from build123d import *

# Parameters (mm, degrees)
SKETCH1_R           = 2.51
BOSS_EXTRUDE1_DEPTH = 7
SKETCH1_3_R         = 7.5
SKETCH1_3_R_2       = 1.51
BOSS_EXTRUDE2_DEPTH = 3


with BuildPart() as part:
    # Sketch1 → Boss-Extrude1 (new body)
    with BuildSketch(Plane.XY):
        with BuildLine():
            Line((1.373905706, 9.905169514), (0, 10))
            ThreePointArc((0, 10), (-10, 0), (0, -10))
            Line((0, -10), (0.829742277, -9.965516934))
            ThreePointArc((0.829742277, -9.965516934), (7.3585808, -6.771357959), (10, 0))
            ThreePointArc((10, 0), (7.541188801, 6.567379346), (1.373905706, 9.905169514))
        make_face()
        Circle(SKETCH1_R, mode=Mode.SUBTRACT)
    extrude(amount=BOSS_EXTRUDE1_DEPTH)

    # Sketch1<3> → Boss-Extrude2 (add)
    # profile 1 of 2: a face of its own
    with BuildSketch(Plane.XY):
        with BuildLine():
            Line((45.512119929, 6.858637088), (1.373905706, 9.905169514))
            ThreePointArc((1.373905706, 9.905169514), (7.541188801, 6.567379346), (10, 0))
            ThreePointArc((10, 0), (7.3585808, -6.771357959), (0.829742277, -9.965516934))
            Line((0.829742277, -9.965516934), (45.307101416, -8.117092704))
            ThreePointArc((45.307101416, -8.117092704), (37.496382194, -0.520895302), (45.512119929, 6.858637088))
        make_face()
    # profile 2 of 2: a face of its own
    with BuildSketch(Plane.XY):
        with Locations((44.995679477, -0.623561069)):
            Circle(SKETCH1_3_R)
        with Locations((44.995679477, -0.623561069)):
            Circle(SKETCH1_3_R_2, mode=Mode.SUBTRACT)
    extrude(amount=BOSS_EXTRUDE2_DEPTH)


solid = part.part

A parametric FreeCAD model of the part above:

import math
import FreeCAD as App
import Part
import Sketcher
from FreeCAD import Vector

doc = App.newDocument("Part")
body = doc.addObject("PartDesign::Body", "Body")

sketch1 = doc.addObject("Sketcher::SketchObject", "Sketch")
body.addObject(sketch1)
sketch1.AttachmentSupport = (doc.XY_Plane, [""])
sketch1.MapMode = "FlatFace"
sketch1.addGeometry([
    Part.LineSegment(Vector(1.4, 9.9, 0), Vector(0, 10, 0)),
    Part.ArcOfCircle(Part.Circle(Vector(0, 0, 0), Vector(0, 0, 1), 10), math.radians(90), math.radians(270)),
    Part.LineSegment(Vector(0, -10, 0), Vector(0.8, -10, 0)),
    Part.ArcOfCircle(Part.Circle(Vector(0, 0, 0), Vector(0, 0, 1), 10), math.radians(-85), math.radians(0)),
    Part.ArcOfCircle(Part.Circle(Vector(0, 0, 0), Vector(0, 0, 1), 10), math.radians(0), math.radians(82)),
    Part.Circle(Vector(0, 0, 0), Vector(0, 0, 1), 2.5),
], False)
sketch1.addConstraint([
    Sketcher.Constraint("Coincident", 0, 2, 1, 1),
    Sketcher.Constraint("Coincident", 1, 2, 2, 1),
    Sketcher.Constraint("Coincident", 2, 2, 3, 1),
    Sketcher.Constraint("Tangent", 3, 2, 4, 1),
    Sketcher.Constraint("Coincident", 4, 2, 0, 1),
    Sketcher.Constraint("Coincident", 1, 3, -1, 1),
    Sketcher.Constraint("Coincident", 3, 3, -1, 1),
    Sketcher.Constraint("Coincident", 5, 3, -1, 1),
    Sketcher.Constraint("Equal", 1, 3),
    Sketcher.Constraint("Equal", 3, 4),
    Sketcher.Constraint("PointOnObject", 0, 2, -2),
    Sketcher.Constraint("PointOnObject", 1, 2, -2),
    Sketcher.Constraint("PointOnObject", 3, 2, -1),
    Sketcher.Constraint("Radius", 1, 10.0),
    Sketcher.Constraint("Diameter", 5, 5.02),
    Sketcher.Constraint("Distance", 2, 0.830459),
    Sketcher.Constraint("DistanceY", -1, 1, 4, 2, 9.90517),
])
pad1 = doc.addObject("PartDesign::Pad", "Pad")
body.addObject(pad1)
pad1.Profile = sketch1
pad1.Length = 7

sketch2 = doc.addObject("Sketcher::SketchObject", "Sketch001")
body.addObject(sketch2)
sketch2.AttachmentSupport = (doc.XY_Plane, [""])
sketch2.MapMode = "FlatFace"
sketch2.addGeometry([
    Part.LineSegment(Vector(45.5, 6.9, 0), Vector(1.4, 9.9, 0)),
    Part.ArcOfCircle(Part.Circle(Vector(0, 0, 0), Vector(0, 0, 1), 10), math.radians(0), math.radians(82)),
    Part.ArcOfCircle(Part.Circle(Vector(0, 0, 0), Vector(0, 0, 1), 10), math.radians(-85), math.radians(0)),
    Part.LineSegment(Vector(0.8, -10, 0), Vector(45.3, -8.1, 0)),
    Part.ArcOfCircle(Part.Circle(Vector(45, -0.6, 0), Vector(0, 0, 1), 7.5), math.radians(-88), math.radians(86)),
    Part.Circle(Vector(45, -0.6, 0), Vector(0, 0, 1), 1.5),
], False)
sketch2.addConstraint([
    Sketcher.Constraint("Coincident", 0, 2, 1, 2),
    Sketcher.Constraint("Tangent", 1, 1, 2, 2),
    Sketcher.Constraint("Coincident", 2, 1, 3, 1),
    Sketcher.Constraint("Tangent", 3, 2, 4, 1),
    Sketcher.Constraint("Tangent", 4, 2, 0, 1),
    Sketcher.Constraint("Coincident", 1, 3, -1, 1),
    Sketcher.Constraint("Coincident", 5, 3, 4, 3),
    Sketcher.Constraint("Equal", 1, 2),
    Sketcher.Constraint("PointOnObject", 1, 1, -1),
    Sketcher.Constraint("Radius", 1, 10.0),
    Sketcher.Constraint("Radius", 4, 7.5),
    Sketcher.Constraint("Diameter", 5, 3.02),
    Sketcher.Constraint("DistanceX", -1, 1, 3, 2, 45.307101),
    Sketcher.Constraint("DistanceY", 4, 3, 4, 2, 7.482198),
    Sketcher.Constraint("Distance", 0, 44.243229),
    Sketcher.Constraint("Distance", 3, 44.515752),
])
pad2 = doc.addObject("PartDesign::Pad", "Pad001")
body.addObject(pad2)
pad2.Profile = sketch2
pad2.Length = 3

doc.recompute()
